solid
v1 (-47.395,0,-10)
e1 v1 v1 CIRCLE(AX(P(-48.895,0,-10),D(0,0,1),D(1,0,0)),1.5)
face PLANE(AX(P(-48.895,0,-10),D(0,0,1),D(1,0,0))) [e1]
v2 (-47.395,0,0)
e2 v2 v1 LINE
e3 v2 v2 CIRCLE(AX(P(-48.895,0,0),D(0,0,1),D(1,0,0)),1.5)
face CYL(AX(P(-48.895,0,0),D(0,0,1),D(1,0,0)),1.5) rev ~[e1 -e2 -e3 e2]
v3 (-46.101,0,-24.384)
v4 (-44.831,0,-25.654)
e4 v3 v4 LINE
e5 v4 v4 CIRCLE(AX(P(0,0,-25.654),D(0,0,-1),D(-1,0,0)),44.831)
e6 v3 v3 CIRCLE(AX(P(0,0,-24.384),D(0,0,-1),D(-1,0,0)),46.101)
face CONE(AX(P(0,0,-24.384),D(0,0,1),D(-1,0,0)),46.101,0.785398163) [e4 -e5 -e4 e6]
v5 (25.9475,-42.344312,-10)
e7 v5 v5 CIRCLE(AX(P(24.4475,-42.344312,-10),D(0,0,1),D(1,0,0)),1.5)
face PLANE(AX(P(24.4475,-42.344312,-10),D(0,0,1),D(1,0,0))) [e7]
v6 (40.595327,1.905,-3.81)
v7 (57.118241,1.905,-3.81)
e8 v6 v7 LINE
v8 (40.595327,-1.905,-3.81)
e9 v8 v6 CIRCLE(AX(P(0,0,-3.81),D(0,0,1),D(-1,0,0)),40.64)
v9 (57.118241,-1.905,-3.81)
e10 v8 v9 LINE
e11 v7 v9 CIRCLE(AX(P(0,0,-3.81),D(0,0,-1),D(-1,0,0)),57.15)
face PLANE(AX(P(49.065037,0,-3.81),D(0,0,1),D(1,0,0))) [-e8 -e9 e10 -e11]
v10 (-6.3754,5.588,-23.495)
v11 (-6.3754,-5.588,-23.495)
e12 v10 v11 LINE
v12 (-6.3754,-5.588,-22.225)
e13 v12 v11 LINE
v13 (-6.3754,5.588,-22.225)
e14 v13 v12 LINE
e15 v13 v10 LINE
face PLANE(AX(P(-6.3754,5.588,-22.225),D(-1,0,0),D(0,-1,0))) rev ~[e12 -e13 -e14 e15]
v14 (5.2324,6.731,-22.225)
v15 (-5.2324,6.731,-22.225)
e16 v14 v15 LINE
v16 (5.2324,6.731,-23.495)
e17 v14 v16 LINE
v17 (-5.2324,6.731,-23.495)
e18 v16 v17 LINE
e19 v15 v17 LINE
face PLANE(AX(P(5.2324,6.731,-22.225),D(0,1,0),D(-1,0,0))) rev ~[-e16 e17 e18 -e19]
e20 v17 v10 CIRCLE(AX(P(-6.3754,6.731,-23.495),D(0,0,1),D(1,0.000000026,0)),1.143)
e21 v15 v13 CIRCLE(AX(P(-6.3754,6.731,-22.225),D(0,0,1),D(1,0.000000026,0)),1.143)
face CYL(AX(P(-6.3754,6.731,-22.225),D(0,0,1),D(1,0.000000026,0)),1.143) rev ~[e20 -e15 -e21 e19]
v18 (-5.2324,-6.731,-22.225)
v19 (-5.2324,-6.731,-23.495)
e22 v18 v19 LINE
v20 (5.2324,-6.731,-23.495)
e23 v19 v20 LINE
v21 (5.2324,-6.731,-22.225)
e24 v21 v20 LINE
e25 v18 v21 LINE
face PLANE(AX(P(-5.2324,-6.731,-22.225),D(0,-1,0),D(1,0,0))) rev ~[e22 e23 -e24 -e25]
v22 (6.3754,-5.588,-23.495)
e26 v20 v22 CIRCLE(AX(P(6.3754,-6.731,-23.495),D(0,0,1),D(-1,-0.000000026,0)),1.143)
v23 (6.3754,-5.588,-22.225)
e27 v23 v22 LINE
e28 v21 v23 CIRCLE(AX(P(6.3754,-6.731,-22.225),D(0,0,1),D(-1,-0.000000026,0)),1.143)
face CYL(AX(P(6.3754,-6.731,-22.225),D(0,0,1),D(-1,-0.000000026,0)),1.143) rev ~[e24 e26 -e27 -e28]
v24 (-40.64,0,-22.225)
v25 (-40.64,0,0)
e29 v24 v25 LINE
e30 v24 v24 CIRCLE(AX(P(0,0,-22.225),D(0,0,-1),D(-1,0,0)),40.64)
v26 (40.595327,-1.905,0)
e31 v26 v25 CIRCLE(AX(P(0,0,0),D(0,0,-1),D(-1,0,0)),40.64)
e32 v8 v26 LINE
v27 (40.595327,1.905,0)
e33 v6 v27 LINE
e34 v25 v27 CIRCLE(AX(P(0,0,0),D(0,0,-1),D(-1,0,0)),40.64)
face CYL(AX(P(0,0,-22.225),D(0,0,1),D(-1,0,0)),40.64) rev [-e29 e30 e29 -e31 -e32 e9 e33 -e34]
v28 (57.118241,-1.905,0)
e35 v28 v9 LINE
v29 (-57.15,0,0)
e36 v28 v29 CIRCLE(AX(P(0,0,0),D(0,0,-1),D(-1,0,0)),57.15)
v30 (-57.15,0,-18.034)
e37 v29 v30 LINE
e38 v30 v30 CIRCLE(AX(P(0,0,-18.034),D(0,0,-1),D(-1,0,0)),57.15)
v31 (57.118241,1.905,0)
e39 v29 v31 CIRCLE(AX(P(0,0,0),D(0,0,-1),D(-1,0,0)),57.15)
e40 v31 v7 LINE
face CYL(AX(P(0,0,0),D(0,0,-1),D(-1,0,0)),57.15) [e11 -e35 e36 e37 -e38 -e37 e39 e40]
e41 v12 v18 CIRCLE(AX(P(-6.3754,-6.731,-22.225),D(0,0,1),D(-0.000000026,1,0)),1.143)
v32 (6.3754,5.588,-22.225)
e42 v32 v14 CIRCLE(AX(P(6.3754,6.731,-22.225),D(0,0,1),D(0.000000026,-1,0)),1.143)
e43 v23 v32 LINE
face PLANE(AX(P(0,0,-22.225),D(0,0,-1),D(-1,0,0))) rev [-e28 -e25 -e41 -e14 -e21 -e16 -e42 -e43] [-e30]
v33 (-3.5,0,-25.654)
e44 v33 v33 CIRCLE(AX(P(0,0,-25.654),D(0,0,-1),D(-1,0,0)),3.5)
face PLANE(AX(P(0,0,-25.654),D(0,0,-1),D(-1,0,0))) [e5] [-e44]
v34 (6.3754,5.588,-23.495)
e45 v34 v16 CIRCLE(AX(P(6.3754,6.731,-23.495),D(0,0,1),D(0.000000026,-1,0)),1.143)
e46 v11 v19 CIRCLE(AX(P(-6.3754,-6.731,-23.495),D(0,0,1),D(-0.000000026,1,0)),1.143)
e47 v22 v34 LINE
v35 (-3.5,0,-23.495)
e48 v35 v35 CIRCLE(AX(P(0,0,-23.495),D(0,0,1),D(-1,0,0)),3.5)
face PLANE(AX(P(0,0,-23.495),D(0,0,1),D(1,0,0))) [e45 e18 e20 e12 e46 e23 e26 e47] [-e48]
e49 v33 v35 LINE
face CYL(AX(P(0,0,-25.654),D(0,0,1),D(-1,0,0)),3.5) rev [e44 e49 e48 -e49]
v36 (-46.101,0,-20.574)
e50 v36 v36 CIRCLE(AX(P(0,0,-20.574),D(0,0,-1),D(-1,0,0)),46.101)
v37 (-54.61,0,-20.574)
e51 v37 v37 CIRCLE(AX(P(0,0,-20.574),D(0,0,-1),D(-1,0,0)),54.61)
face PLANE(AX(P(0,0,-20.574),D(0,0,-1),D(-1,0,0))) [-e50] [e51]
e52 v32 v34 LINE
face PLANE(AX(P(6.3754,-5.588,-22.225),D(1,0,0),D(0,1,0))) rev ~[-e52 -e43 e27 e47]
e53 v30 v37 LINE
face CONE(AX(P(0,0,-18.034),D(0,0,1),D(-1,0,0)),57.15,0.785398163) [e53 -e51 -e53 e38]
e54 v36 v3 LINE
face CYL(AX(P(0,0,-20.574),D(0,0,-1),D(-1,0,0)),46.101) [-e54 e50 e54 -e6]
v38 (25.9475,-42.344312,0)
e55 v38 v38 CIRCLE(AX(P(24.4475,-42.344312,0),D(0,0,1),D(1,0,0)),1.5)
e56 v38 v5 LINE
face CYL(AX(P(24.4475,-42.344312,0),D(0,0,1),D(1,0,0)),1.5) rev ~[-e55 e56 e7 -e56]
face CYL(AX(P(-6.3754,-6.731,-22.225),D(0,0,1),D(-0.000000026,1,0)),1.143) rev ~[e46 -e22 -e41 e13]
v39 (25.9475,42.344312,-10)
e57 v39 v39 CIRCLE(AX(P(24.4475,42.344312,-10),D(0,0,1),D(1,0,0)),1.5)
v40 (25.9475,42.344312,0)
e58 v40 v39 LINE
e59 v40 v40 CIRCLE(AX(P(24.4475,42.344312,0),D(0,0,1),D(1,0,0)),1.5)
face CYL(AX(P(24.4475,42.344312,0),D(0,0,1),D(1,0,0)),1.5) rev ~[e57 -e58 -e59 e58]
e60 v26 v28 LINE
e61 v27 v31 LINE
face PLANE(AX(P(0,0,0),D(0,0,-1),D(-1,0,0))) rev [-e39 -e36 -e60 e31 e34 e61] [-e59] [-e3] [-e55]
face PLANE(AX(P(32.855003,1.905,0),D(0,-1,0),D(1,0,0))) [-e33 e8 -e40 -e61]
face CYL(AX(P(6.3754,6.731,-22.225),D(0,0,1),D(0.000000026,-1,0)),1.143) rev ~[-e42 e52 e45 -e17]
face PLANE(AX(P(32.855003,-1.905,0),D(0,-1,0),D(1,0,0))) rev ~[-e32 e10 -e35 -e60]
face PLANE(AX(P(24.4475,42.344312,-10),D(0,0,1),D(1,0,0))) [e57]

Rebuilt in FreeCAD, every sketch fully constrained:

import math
import FreeCAD as App
import Part
import Sketcher
from FreeCAD import Vector
Q = App.Units.Quantity


def edges_at(feature, points):
    """Names of the edges that pass closest to the given points."""
    edges = feature.Shape.Edges
    near = lambda p: min(range(len(edges)), key=lambda i: edges[i].distToShape(Part.Vertex(*p))[0])
    return sorted({f"Edge{near(p) + 1}" for p in points})

doc = App.newDocument("Part")
params = doc.addObject("Spreadsheet::Sheet", "Params")
for row, (alias, value) in enumerate([
    ("sketch1_height", "0.2 in"),
    ("sketch1_width", "0.65 in"),
    ("sketch1_height2", "0.81 in"),
    ("sketch1_width2", "0.435 in"),
    ("sketch1_height3", "0.135 in"),
    ("revolution_angle", "360 deg"),
    ("chamfer_size", "0.1 in"),
    ("chamfer2_size", "0.05 in"),
    ("sketch2_radius", "0.045 in"),
    ("sketch2_height", "0.44 in"),
    ("sketch2_width", "0.412 in"),
    ("pocket1_length", "0.05 in"),
    ("pocket2_length", "10 mm"),
    ("sketch4_height", "0.15 in"),
    ("pocket3_length", "0.15 in"),
], start=1):
    params.set(f"A{row}", alias)
    params.set(f"B{row}", "=" + value)
    params.setAlias(f"B{row}", alias)

body = doc.addObject("PartDesign::Body", "Body")

# Sketch on XZ plane
sketch1 = doc.addObject("Sketcher::SketchObject", "Sketch")
body.addObject(sketch1)
sketch1.AttachmentSupport = (doc.XZ_Plane, [""])
sketch1.MapMode = "FlatFace"
sketch1.addGeometry([
    Part.LineSegment(Vector(-40.6, 0, 0), Vector(-57.1, 0, 0)),  # 0
    Part.LineSegment(Vector(-57.1, 0, 0), Vector(-57.1, -20.6, 0)),  # 1
    Part.LineSegment(Vector(-57.1, -20.6, 0), Vector(-46.1, -20.6, 0)),  # 2
    Part.LineSegment(Vector(-46.1, -20.6, 0), Vector(-46.1, -25.7, 0)),  # 3
    Part.LineSegment(Vector(-46.1, -25.7, 0), Vector(-3.5, -25.7, 0)),  # 4
    Part.LineSegment(Vector(-3.5, -25.7, 0), Vector(-3.5, -22.2, 0)),  # 5
    Part.LineSegment(Vector(-3.5, -22.2, 0), Vector(-40.6, -22.2, 0)),  # 6
    Part.LineSegment(Vector(-40.6, -22.2, 0), Vector(-40.6, 0, 0)),  # 7
], False)
sketch1.addConstraint([
    Sketcher.Constraint("Coincident", 0, 2, 1, 1),
    Sketcher.Constraint("Coincident", 1, 2, 2, 1),
    Sketcher.Constraint("Coincident", 2, 2, 3, 1),
    Sketcher.Constraint("Coincident", 3, 2, 4, 1),
    Sketcher.Constraint("Coincident", 4, 2, 5, 1),
    Sketcher.Constraint("Coincident", 5, 2, 6, 1),
    Sketcher.Constraint("Coincident", 6, 2, 7, 1),
    Sketcher.Constraint("Coincident", 7, 2, 0, 1),
    Sketcher.Constraint("Horizontal", 0),
    Sketcher.Constraint("Vertical", 1),
    Sketcher.Constraint("Horizontal", 2),
    Sketcher.Constraint("Vertical", 3),
    Sketcher.Constraint("Horizontal", 4),
    Sketcher.Constraint("Vertical", 5),
    Sketcher.Constraint("Horizontal", 6),
    Sketcher.Constraint("Vertical", 7),
    Sketcher.Constraint("PointOnObject", 0, 2, -1),
    Sketcher.Constraint("DistanceY", 3, 2, 3, 1, Q("0.2 in")),
    Sketcher.Constraint("DistanceX", 0, 2, 0, 1, Q("0.65 in")),
    Sketcher.Constraint("DistanceY", 1, 2, 1, 1, Q("0.81 in")),
    Sketcher.Constraint("DistanceX", 6, 2, -1, 1, Q("1.6 in")),
    Sketcher.Constraint("DistanceX", 2, 1, 2, 2, Q("0.435 in")),
    Sketcher.Constraint("DistanceY", 5, 1, 5, 2, Q("0.135 in")),
    Sketcher.Constraint("DistanceX", 4, 1, 4, 2, 42.601),
])
sketch1.setExpression("Constraints[17]", "Params.sketch1_height")
sketch1.setExpression("Constraints[18]", "Params.sketch1_width")
sketch1.setExpression("Constraints[19]", "Params.sketch1_height2")
sketch1.setExpression("Constraints[21]", "Params.sketch1_width2")
sketch1.setExpression("Constraints[22]", "Params.sketch1_height3")
revolution = doc.addObject("PartDesign::Revolution", "Revolution")
body.addObject(revolution)
revolution.Profile = sketch1
revolution.ReferenceAxis = (sketch1, ["V_Axis"])
revolution.setExpression("Angle", "Params.revolution_angle")
doc.recompute()

chamfer = doc.addObject("PartDesign::Chamfer", "Chamfer")
body.addObject(chamfer)
chamfer.Base = (revolution, edges_at(revolution, [(57.15, 0, -20.574)]))
chamfer.setExpression("Size", "Params.chamfer_size")
doc.recompute()

chamfer2 = doc.addObject("PartDesign::Chamfer", "Chamfer001")
body.addObject(chamfer2)
chamfer2.Base = (chamfer, edges_at(chamfer, [(46.101, 0, -25.654)]))
chamfer2.setExpression("Size", "Params.chamfer2_size")

# Sketch on XY plane
sketch2 = doc.addObject("Sketcher::SketchObject", "Sketch001")
body.addObject(sketch2)
sketch2.AttachmentSupport = (doc.XY_Plane, [""])
sketch2.MapMode = "FlatFace"
sketch2.AttachmentOffset = App.Placement(Vector(0, 0, -0.875 * 25.4), App.Rotation())
sketch2.addGeometry([
    Part.LineSegment(Vector(5.2, 6.7, 0), Vector(-5.2, 6.7, 0)),  # 0
    Part.ArcOfCircle(Part.Circle(Vector(-6.4, 6.7, 0), Vector(0, 0, 1), 1.1), math.radians(0), math.radians(270)),  # 1
    Part.LineSegment(Vector(-6.4, 5.6, 0), Vector(-6.4, -5.6, 0)),  # 2
    Part.ArcOfCircle(Part.Circle(Vector(-6.4, -6.7, 0), Vector(0, 0, 1), 1.1), math.radians(90), math.radians(360)),  # 3
    Part.LineSegment(Vector(-5.2, -6.7, 0), Vector(5.2, -6.7, 0)),  # 4
    Part.ArcOfCircle(Part.Circle(Vector(6.4, -6.7, 0), Vector(0, 0, 1), 1.1), math.radians(-180), math.radians(90)),  # 5
    Part.LineSegment(Vector(6.4, -5.6, 0), Vector(6.4, 5.6, 0)),  # 6
    Part.ArcOfCircle(Part.Circle(Vector(6.4, 6.7, 0), Vector(0, 0, 1), 1.1), math.radians(-90), math.radians(180)),  # 7
], False)
sketch2.addConstraint([
    Sketcher.Constraint("Coincident", 0, 2, 1, 1),
    Sketcher.Constraint("Coincident", 1, 2, 2, 1),
    Sketcher.Constraint("Coincident", 2, 2, 3, 1),
    Sketcher.Constraint("Coincident", 3, 2, 4, 1),
    Sketcher.Constraint("Coincident", 4, 2, 5, 1),
    Sketcher.Constraint("Coincident", 5, 2, 6, 1),
    Sketcher.Constraint("Coincident", 6, 2, 7, 1),
    Sketcher.Constraint("Coincident", 7, 2, 0, 1),
    Sketcher.Constraint("Horizontal", 0),
    Sketcher.Constraint("Vertical", 2),
    Sketcher.Constraint("Horizontal", 4),
    Sketcher.Constraint("Vertical", 6),
    Sketcher.Constraint("Equal", 1, 3),
    Sketcher.Constraint("Equal", 3, 5),
    Sketcher.Constraint("Equal", 5, 7),
    Sketcher.Constraint("Symmetric", 1, 3, 5, 3, -1, 1),
    Sketcher.Constraint("Symmetric", 3, 3, 7, 3, -1, 1),
    Sketcher.Constraint("Symmetric", 3, 3, 5, 3, -2),
    Sketcher.Constraint("Horizontal", 7, 3, 0, 2),
    Sketcher.Constraint("Horizontal", 5, 3, 3, 2),
    Sketcher.Constraint("Vertical", 3, 3, 1, 2),
    Sketcher.Constraint("Vertical", 7, 3, 5, 2),
    Sketcher.Constraint("Radius", 1, Q("0.045 in")),
    Sketcher.Constraint("DistanceY", 2, 2, 2, 1, Q("0.44 in")),
    Sketcher.Constraint("DistanceX", 0, 2, 0, 1, Q("0.412 in")),
])
sketch2.setExpression("Constraints[22]", "Params.sketch2_radius")
sketch2.setExpression("Constraints[23]", "Params.sketch2_height")
sketch2.setExpression("Constraints[24]", "Params.sketch2_width")
pocket1 = doc.addObject("PartDesign::Pocket", "Pocket")
body.addObject(pocket1)
pocket1.Profile = sketch2
pocket1.setExpression("Length", "Params.pocket1_length")

# Sketch on XY plane
sketch3 = doc.addObject("Sketcher::SketchObject", "Sketch002")
body.addObject(sketch3)
sketch3.AttachmentSupport = (doc.XY_Plane, [""])
sketch3.MapMode = "FlatFace"
sketch3.addGeometry([
    Part.Circle(Vector(-48.9, 0, 0), Vector(0, 0, 1), 1.5),
    Part.Circle(Vector(24.4, -42.3, 0), Vector(0, 0, 1), 1.5),
    Part.Circle(Vector(24.4, 42.3, 0), Vector(0, 0, 1), 1.5),
], False)
sketch3.addConstraint([
    Sketcher.Constraint("Equal", 0, 1),
    Sketcher.Constraint("Equal", 1, 2),
    Sketcher.Constraint("Symmetric", 1, 3, 2, 3, -1),
    Sketcher.Constraint("PointOnObject", 0, 3, -1),
    Sketcher.Constraint("Diameter", 0, 3.0),
    Sketcher.Constraint("DistanceX", 0, 3, -1, 1, Q("1.925 in")),
    Sketcher.Constraint("DistanceX", -1, 1, 1, 3, Q("0.9625 in")),
    Sketcher.Constraint("DistanceY", 1, 3, -1, 1, 42.344312),
])
pocket2 = doc.addObject("PartDesign::Pocket", "Pocket001")
body.addObject(pocket2)
pocket2.Profile = sketch3
pocket2.setExpression("Length", "Params.pocket2_length")

# Sketch on XY plane
sketch4 = doc.addObject("Sketcher::SketchObject", "Sketch003")
body.addObject(sketch4)
sketch4.AttachmentSupport = (doc.XY_Plane, [""])
sketch4.MapMode = "FlatFace"
sketch4.addGeometry([
    Part.LineSegment(Vector(32.9, 1.9, 0), Vector(32.9, -1.9, 0)),
    Part.LineSegment(Vector(32.9, -1.9, 0), Vector(65.3, -1.9, 0)),
    Part.LineSegment(Vector(65.3, -1.9, 0), Vector(65.3, 1.9, 0)),
    Part.LineSegment(Vector(65.3, 1.9, 0), Vector(32.9, 1.9, 0)),
], False)
sketch4.addConstraint([
    Sketcher.Constraint("Coincident", 0, 2, 1, 1),
    Sketcher.Constraint("Coincident", 1, 2, 2, 1),
    Sketcher.Constraint("Coincident", 2, 2, 3, 1),
    Sketcher.Constraint("Coincident", 3, 2, 0, 1),
    Sketcher.Constraint("Vertical", 0),
    Sketcher.Constraint("Horizontal", 1),
    Sketcher.Constraint("Vertical", 2),
    Sketcher.Constraint("Horizontal", 3),
    Sketcher.Constraint("DistanceY", 0, 2, 0, 1, Q("0.15 in")),
    Sketcher.Constraint("DistanceY", 0, 2, -1, 1, Q("0.075 in")),
    Sketcher.Constraint("DistanceX", 1, 1, 1, 2, 32.420068),
    Sketcher.Constraint("DistanceX", -1, 1, 1, 2, 65.275071),
])
sketch4.setExpression("Constraints[8]", "Params.sketch4_height")
pocket3 = doc.addObject("PartDesign::Pocket", "Pocket002")
body.addObject(pocket3)
pocket3.Profile = sketch4
pocket3.setExpression("Length", "Params.pocket3_length")

doc.recompute()
